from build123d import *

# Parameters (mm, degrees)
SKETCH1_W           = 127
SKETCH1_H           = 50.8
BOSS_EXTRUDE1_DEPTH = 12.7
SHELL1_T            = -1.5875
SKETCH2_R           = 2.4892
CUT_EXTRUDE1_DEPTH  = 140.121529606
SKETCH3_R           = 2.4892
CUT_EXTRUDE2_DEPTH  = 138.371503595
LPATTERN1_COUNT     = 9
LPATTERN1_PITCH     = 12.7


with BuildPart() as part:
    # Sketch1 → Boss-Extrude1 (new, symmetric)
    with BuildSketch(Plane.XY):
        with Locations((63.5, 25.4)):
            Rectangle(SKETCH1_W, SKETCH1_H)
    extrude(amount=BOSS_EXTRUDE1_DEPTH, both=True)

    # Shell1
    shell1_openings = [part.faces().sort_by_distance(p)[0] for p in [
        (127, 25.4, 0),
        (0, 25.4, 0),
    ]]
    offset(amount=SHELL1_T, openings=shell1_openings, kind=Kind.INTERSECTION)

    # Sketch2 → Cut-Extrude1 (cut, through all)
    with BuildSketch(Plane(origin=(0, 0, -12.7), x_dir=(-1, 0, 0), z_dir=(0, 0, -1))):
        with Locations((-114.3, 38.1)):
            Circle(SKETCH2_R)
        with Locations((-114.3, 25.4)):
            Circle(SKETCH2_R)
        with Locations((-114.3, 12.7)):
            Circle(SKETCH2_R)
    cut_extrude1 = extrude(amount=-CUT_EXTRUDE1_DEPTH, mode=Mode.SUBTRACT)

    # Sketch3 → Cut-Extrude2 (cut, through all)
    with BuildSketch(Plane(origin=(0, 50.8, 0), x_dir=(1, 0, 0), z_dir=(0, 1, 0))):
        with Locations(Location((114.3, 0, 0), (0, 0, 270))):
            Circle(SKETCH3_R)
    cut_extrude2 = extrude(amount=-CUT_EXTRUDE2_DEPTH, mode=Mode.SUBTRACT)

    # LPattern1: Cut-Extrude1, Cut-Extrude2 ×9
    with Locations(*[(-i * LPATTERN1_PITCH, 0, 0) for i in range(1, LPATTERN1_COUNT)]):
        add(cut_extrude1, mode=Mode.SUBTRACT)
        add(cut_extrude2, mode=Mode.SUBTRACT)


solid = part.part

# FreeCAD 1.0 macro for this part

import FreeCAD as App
import Part
import Sketcher
Q = App.Units.Quantity


def faces_at(feature, points):
    """Names of the faces that lie closest to the given points."""
    faces = feature.Shape.Faces
    near = lambda p: min(range(len(faces)), key=lambda i: faces[i].distToShape(Part.Vertex(*p))[0])
    return sorted({f"Face{near(p) + 1}" for p in points})

doc = App.newDocument("Part")
body = doc.addObject("PartDesign::Body", "Body")

# Sketch on XY plane
sketch1 = doc.addObject("Sketcher::SketchObject", "Sketch")
body.addObject(sketch1)
sketch1.AttachmentSupport = (doc.XY_Plane, [""])
sketch1.MapMode = "FlatFace"
sketch1.addGeometry(Part.LineSegment(App.Vector(0, 51, 0), App.Vector(0, 0, 0)), False)
sketch1.addGeometry(Part.LineSegment(App.Vector(0, 0, 0), App.Vector(127, 0, 0)), False)
sketch1.addGeometry(Part.LineSegment(App.Vector(127, 0, 0), App.Vector(127, 51, 0)), False)
sketch1.addGeometry(Part.LineSegment(App.Vector(127, 51, 0), App.Vector(0, 51, 0)), False)
sketch1.addConstraint(Sketcher.Constraint("Coincident", 0, 2, 1, 1))
sketch1.addConstraint(Sketcher.Constraint("Coincident", 1, 2, 2, 1))
sketch1.addConstraint(Sketcher.Constraint("Coincident", 2, 2, 3, 1))
sketch1.addConstraint(Sketcher.Constraint("Coincident", 3, 2, 0, 1))
sketch1.addConstraint(Sketcher.Constraint("Vertical", 0))
sketch1.addConstraint(Sketcher.Constraint("Horizontal", 1))
sketch1.addConstraint(Sketcher.Constraint("Vertical", 2))
sketch1.addConstraint(Sketcher.Constraint("Horizontal", 3))
sketch1.addConstraint(Sketcher.Constraint("Coincident", 0, 2, -1, 1))
sketch1.addConstraint(Sketcher.Constraint("DistanceX", 1, 1, 1, 2, Q("5 in")))
sketch1.addConstraint(Sketcher.Constraint("DistanceY", 0, 2, 0, 1, Q("2 in")))
pad1 = doc.addObject("PartDesign::Pad", "Pad")
body.addObject(pad1)
pad1.Profile = sketch1
pad1.Length = Q("1 in")
pad1.Midplane = True
doc.recompute()

thickness = doc.addObject("PartDesign::Thickness", "Thickness")
body.addObject(thickness)
thickness.Base = (pad1, faces_at(pad1, [(127, 25.4, 0), (0, 25.4, 0)]))
thickness.Value = Q("0.0625 in")
thickness.Reversed = True
thickness.Join = "Intersection"

# Sketch on XY plane
sketch2 = doc.addObject("Sketcher::SketchObject", "Sketch001")
body.addObject(sketch2)
sketch2.AttachmentSupport = (doc.XY_Plane, [""])
sketch2.MapMode = "FlatFace"
sketch2.AttachmentOffset = App.Placement(App.Vector(0, 0, -0.5 * 25.4), App.Rotation())
sketch2.addGeometry(Part.Circle(App.Vector(114.3, 38.1, 0), App.Vector(0, 0, 1), 2.5), False)
sketch2.addGeometry(Part.Circle(App.Vector(114.3, 25.4, 0), App.Vector(0, 0, 1), 2.5), False)
sketch2.addGeometry(Part.Circle(App.Vector(114.3, 12.7, 0), App.Vector(0, 0, 1), 2.5), False)
sketch2.addConstraint(Sketcher.Constraint("Equal", 0, 1))
sketch2.addConstraint(Sketcher.Constraint("Equal", 1, 2))
sketch2.addConstraint(Sketcher.Constraint("Vertical", 0, 3, 1, 3))
sketch2.addConstraint(Sketcher.Constraint("Vertical", 1, 3, 2, 3))
sketch2.addConstraint(Sketcher.Constraint("Diameter", 0, Q("0.196 in")))
sketch2.addConstraint(Sketcher.Constraint("DistanceY", -1, 1, 1, 3, Q("1 in")))
sketch2.addConstraint(Sketcher.Constraint("DistanceY", 2, 3, 0, 3, Q("1 in")))
sketch2.addConstraint(Sketcher.Constraint("DistanceX", -1, 1, 0, 3, Q("4.5 in")))
sketch2.addConstraint(Sketcher.Constraint("DistanceY", -1, 1, 0, 3, Q("1.5 in")))
pocket1 = doc.addObject("PartDesign::Pocket", "Pocket")
body.addObject(pocket1)
pocket1.Profile = sketch2
pocket1.Type = "ThroughAll"
pocket1.Reversed = True

# Sketch on XZ plane
sketch3 = doc.addObject("Sketcher::SketchObject", "Sketch002")
body.addObject(sketch3)
sketch3.AttachmentSupport = (doc.XZ_Plane, [""])
sketch3.MapMode = "FlatFace"
sketch3.AttachmentOffset = App.Placement(App.Vector(0, 0, -2 * 25.4), App.Rotation())
sketch3.addGeometry(Part.Circle(App.Vector(114.3, 0, 0), App.Vector(0, 0, 1), 2.5), False)
sketch3.addConstraint(Sketcher.Constraint("PointOnObject", 0, 3, -1))
sketch3.addConstraint(Sketcher.Constraint("Diameter", 0, Q("0.196 in")))
sketch3.addConstraint(Sketcher.Constraint("DistanceX", -1, 1, 0, 3, Q("4.5 in")))
pocket2 = doc.addObject("PartDesign::Pocket", "Pocket001")
body.addObject(pocket2)
pocket2.Profile = sketch3
pocket2.Type = "ThroughAll"
pocket2.Reversed = True
doc.recompute()

linearpattern = doc.addObject("PartDesign::LinearPattern", "LinearPattern")
body.addObject(linearpattern)
linearpattern.Originals = [pocket1, pocket2]
linearpattern.Direction = (doc.X_Axis, [""])
linearpattern.Mode = "offset"
linearpattern.Offset = Q("0.5 in")
linearpattern.Occurrences = 9
linearpattern.Reversed = True
body.Tip = linearpattern

doc.recompute()
